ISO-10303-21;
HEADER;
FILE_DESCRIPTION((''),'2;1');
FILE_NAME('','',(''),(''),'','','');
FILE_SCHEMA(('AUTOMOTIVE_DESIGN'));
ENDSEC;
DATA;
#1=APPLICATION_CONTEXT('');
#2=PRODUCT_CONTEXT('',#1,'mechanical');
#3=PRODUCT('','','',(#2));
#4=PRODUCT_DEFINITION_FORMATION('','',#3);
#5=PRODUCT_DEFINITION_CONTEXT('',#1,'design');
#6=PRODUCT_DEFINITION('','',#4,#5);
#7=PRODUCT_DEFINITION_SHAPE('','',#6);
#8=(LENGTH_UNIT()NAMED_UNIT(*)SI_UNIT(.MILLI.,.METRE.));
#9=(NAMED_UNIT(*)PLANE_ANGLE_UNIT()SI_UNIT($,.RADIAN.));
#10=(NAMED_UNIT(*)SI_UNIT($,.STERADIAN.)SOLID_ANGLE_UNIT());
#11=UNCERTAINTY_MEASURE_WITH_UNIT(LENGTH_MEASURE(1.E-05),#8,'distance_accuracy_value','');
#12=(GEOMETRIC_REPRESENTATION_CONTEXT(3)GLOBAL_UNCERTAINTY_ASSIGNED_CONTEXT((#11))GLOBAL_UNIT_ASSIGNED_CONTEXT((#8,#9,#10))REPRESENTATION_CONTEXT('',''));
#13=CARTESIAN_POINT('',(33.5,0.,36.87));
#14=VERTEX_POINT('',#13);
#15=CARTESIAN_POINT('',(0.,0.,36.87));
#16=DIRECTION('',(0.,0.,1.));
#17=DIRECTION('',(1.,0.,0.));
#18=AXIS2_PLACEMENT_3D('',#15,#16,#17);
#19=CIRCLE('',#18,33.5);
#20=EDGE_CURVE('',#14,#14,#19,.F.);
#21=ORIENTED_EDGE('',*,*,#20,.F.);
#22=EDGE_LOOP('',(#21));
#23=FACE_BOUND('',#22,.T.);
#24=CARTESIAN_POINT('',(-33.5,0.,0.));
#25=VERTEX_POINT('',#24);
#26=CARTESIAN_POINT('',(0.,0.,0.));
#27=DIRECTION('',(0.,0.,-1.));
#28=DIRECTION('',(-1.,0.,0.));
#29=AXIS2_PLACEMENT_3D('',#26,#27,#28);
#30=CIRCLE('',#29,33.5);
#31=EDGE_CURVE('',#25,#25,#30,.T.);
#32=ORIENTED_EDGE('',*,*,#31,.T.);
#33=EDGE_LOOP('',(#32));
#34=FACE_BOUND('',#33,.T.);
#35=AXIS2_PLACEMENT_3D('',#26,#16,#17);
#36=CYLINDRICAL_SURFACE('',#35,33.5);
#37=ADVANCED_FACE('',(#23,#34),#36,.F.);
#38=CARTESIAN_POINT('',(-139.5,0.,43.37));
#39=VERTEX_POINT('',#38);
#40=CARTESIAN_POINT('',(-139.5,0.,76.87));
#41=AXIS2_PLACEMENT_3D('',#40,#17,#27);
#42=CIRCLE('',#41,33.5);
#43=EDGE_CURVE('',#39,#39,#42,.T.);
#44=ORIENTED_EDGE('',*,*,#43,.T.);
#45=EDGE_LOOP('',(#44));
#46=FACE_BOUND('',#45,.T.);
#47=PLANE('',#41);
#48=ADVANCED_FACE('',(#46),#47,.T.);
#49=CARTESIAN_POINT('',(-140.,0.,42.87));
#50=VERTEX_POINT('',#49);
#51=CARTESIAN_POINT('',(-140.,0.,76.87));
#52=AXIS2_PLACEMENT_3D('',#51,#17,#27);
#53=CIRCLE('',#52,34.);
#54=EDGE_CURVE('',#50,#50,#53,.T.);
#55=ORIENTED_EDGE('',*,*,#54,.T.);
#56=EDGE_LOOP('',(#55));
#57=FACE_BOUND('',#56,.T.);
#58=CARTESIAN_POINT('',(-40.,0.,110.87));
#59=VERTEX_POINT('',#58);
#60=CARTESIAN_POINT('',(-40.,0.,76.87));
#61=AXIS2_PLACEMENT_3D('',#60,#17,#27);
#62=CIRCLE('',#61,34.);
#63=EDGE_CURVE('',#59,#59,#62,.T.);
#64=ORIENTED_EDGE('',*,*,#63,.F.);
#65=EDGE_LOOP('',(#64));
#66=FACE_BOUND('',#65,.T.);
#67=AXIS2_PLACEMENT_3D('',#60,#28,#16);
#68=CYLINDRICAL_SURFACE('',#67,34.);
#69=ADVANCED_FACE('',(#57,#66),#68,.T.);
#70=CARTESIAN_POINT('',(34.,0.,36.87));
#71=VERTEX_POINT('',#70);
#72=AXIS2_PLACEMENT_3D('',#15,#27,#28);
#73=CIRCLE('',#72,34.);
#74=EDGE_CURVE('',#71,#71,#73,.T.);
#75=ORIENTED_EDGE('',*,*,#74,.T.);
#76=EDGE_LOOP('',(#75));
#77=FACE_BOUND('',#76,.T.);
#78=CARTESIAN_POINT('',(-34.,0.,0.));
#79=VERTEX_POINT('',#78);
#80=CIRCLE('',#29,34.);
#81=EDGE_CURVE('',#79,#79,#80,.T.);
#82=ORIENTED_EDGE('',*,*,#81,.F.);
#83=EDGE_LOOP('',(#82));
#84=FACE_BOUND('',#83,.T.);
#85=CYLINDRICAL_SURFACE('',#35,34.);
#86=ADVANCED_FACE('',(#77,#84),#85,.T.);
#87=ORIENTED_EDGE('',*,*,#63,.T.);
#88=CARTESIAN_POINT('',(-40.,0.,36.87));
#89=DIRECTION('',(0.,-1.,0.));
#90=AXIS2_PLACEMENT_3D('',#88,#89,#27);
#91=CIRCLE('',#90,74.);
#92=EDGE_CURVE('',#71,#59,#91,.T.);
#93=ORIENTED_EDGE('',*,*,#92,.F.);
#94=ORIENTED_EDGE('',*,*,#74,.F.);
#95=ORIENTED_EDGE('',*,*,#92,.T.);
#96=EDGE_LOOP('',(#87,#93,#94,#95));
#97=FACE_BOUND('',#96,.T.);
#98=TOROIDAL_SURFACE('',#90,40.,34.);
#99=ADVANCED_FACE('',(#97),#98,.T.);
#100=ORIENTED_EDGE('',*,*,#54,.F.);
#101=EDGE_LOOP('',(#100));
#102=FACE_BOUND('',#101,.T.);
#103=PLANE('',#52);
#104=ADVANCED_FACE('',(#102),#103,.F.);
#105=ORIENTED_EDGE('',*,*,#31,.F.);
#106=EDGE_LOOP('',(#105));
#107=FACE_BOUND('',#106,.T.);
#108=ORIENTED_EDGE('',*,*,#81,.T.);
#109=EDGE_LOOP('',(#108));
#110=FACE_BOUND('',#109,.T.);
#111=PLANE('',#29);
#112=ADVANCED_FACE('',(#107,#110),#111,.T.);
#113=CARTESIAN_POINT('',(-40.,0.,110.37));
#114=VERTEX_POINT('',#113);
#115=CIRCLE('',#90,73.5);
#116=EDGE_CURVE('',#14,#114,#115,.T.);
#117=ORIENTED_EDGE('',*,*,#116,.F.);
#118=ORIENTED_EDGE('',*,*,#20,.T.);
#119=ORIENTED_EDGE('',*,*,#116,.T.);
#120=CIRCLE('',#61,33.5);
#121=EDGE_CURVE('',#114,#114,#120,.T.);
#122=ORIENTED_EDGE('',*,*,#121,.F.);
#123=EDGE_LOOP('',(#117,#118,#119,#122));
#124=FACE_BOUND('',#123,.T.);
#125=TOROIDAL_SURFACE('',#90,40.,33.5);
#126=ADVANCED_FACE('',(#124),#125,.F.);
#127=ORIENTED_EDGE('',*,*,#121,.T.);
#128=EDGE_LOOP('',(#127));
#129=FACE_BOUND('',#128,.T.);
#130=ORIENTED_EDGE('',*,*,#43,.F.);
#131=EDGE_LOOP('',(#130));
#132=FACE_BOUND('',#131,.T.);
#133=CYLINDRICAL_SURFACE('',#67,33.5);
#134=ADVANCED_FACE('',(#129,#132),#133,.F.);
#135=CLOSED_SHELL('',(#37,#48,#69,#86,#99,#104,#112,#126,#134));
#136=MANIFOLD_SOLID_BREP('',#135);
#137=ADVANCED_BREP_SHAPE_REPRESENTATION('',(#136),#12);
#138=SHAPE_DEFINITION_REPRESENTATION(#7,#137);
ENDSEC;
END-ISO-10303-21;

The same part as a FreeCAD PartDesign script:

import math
import FreeCAD as App
import Part
import Sketcher
from FreeCAD import Vector
Q = App.Units.Quantity


def faces_at(feature, points):
    """Names of the faces that lie closest to the given points."""
    faces = feature.Shape.Faces
    near = lambda p: min(range(len(faces)), key=lambda i: faces[i].distToShape(Part.Vertex(*p))[0])
    return sorted({f"Face{near(p) + 1}" for p in points})

doc = App.newDocument("Part")
body = doc.addObject("PartDesign::Body", "Body")

# Sketch on XY plane
sketch1 = body.newObject("Sketcher::SketchObject", "Sketch")
sketch1.AttachmentSupport = (doc.getObject("XY_Plane"), [""])
sketch1.MapMode = "FlatFace"
sketch1.addGeometry(Part.Circle(Vector(0, 0, 0), Vector(0, 0, 1), 34), False)
sketch1.addConstraint(Sketcher.Constraint("Coincident", 0, 3, -1, 1))
sketch1.addConstraint(Sketcher.Constraint("Diameter", 0, Q("68 mm")))

# Sketch on XZ plane
sketch2 = body.newObject("Sketcher::SketchObject", "Sketch001")
sketch2.AttachmentSupport = (doc.getObject("XZ_Plane"), [""])
sketch2.MapMode = "FlatFace"
sketch2.addGeometry(Part.LineSegment(Vector(0, 0, 0), Vector(0, 37, 0)), False)
sketch2.addGeometry(Part.ArcOfCircle(Part.Circle(Vector(-40, 37, 0), Vector(0, 0, 1), 40), math.radians(0), math.radians(90)), False)
sketch2.addGeometry(Part.LineSegment(Vector(-40, 77, 0), Vector(-140, 77, 0)), False)
sketch2.addConstraint(Sketcher.Constraint("Tangent", 0, 2, 1, 1))
sketch2.addConstraint(Sketcher.Constraint("Tangent", 1, 2, 2, 1))
sketch2.addConstraint(Sketcher.Constraint("Vertical", 0))
sketch2.addConstraint(Sketcher.Constraint("Horizontal", 2))
sketch2.addConstraint(Sketcher.Constraint("Coincident", 0, 1, -1, 1))
sketch2.addConstraint(Sketcher.Constraint("Radius", 1, Q("40 mm")))
sketch2.addConstraint(Sketcher.Constraint("DistanceX", 2, 2, 2, 1, Q("100 mm")))
sketch2.addConstraint(Sketcher.Constraint("DistanceY", 0, 1, 0, 2, Q("36.87 mm")))
doc.recompute()

additivepipe = body.newObject("PartDesign::AdditivePipe", "AdditivePipe")
additivepipe.Profile = sketch1
additivepipe.Spine = (sketch2, ["Edge1", "Edge2", "Edge3"])
doc.recompute()

thickness = body.newObject("PartDesign::Thickness", "Thickness")
thickness.Base = (additivepipe, faces_at(additivepipe, [(0, 0, 0)]))
thickness.Value = 0.5
thickness.Reversed = True
thickness.Join = "Intersection"

doc.recompute()
